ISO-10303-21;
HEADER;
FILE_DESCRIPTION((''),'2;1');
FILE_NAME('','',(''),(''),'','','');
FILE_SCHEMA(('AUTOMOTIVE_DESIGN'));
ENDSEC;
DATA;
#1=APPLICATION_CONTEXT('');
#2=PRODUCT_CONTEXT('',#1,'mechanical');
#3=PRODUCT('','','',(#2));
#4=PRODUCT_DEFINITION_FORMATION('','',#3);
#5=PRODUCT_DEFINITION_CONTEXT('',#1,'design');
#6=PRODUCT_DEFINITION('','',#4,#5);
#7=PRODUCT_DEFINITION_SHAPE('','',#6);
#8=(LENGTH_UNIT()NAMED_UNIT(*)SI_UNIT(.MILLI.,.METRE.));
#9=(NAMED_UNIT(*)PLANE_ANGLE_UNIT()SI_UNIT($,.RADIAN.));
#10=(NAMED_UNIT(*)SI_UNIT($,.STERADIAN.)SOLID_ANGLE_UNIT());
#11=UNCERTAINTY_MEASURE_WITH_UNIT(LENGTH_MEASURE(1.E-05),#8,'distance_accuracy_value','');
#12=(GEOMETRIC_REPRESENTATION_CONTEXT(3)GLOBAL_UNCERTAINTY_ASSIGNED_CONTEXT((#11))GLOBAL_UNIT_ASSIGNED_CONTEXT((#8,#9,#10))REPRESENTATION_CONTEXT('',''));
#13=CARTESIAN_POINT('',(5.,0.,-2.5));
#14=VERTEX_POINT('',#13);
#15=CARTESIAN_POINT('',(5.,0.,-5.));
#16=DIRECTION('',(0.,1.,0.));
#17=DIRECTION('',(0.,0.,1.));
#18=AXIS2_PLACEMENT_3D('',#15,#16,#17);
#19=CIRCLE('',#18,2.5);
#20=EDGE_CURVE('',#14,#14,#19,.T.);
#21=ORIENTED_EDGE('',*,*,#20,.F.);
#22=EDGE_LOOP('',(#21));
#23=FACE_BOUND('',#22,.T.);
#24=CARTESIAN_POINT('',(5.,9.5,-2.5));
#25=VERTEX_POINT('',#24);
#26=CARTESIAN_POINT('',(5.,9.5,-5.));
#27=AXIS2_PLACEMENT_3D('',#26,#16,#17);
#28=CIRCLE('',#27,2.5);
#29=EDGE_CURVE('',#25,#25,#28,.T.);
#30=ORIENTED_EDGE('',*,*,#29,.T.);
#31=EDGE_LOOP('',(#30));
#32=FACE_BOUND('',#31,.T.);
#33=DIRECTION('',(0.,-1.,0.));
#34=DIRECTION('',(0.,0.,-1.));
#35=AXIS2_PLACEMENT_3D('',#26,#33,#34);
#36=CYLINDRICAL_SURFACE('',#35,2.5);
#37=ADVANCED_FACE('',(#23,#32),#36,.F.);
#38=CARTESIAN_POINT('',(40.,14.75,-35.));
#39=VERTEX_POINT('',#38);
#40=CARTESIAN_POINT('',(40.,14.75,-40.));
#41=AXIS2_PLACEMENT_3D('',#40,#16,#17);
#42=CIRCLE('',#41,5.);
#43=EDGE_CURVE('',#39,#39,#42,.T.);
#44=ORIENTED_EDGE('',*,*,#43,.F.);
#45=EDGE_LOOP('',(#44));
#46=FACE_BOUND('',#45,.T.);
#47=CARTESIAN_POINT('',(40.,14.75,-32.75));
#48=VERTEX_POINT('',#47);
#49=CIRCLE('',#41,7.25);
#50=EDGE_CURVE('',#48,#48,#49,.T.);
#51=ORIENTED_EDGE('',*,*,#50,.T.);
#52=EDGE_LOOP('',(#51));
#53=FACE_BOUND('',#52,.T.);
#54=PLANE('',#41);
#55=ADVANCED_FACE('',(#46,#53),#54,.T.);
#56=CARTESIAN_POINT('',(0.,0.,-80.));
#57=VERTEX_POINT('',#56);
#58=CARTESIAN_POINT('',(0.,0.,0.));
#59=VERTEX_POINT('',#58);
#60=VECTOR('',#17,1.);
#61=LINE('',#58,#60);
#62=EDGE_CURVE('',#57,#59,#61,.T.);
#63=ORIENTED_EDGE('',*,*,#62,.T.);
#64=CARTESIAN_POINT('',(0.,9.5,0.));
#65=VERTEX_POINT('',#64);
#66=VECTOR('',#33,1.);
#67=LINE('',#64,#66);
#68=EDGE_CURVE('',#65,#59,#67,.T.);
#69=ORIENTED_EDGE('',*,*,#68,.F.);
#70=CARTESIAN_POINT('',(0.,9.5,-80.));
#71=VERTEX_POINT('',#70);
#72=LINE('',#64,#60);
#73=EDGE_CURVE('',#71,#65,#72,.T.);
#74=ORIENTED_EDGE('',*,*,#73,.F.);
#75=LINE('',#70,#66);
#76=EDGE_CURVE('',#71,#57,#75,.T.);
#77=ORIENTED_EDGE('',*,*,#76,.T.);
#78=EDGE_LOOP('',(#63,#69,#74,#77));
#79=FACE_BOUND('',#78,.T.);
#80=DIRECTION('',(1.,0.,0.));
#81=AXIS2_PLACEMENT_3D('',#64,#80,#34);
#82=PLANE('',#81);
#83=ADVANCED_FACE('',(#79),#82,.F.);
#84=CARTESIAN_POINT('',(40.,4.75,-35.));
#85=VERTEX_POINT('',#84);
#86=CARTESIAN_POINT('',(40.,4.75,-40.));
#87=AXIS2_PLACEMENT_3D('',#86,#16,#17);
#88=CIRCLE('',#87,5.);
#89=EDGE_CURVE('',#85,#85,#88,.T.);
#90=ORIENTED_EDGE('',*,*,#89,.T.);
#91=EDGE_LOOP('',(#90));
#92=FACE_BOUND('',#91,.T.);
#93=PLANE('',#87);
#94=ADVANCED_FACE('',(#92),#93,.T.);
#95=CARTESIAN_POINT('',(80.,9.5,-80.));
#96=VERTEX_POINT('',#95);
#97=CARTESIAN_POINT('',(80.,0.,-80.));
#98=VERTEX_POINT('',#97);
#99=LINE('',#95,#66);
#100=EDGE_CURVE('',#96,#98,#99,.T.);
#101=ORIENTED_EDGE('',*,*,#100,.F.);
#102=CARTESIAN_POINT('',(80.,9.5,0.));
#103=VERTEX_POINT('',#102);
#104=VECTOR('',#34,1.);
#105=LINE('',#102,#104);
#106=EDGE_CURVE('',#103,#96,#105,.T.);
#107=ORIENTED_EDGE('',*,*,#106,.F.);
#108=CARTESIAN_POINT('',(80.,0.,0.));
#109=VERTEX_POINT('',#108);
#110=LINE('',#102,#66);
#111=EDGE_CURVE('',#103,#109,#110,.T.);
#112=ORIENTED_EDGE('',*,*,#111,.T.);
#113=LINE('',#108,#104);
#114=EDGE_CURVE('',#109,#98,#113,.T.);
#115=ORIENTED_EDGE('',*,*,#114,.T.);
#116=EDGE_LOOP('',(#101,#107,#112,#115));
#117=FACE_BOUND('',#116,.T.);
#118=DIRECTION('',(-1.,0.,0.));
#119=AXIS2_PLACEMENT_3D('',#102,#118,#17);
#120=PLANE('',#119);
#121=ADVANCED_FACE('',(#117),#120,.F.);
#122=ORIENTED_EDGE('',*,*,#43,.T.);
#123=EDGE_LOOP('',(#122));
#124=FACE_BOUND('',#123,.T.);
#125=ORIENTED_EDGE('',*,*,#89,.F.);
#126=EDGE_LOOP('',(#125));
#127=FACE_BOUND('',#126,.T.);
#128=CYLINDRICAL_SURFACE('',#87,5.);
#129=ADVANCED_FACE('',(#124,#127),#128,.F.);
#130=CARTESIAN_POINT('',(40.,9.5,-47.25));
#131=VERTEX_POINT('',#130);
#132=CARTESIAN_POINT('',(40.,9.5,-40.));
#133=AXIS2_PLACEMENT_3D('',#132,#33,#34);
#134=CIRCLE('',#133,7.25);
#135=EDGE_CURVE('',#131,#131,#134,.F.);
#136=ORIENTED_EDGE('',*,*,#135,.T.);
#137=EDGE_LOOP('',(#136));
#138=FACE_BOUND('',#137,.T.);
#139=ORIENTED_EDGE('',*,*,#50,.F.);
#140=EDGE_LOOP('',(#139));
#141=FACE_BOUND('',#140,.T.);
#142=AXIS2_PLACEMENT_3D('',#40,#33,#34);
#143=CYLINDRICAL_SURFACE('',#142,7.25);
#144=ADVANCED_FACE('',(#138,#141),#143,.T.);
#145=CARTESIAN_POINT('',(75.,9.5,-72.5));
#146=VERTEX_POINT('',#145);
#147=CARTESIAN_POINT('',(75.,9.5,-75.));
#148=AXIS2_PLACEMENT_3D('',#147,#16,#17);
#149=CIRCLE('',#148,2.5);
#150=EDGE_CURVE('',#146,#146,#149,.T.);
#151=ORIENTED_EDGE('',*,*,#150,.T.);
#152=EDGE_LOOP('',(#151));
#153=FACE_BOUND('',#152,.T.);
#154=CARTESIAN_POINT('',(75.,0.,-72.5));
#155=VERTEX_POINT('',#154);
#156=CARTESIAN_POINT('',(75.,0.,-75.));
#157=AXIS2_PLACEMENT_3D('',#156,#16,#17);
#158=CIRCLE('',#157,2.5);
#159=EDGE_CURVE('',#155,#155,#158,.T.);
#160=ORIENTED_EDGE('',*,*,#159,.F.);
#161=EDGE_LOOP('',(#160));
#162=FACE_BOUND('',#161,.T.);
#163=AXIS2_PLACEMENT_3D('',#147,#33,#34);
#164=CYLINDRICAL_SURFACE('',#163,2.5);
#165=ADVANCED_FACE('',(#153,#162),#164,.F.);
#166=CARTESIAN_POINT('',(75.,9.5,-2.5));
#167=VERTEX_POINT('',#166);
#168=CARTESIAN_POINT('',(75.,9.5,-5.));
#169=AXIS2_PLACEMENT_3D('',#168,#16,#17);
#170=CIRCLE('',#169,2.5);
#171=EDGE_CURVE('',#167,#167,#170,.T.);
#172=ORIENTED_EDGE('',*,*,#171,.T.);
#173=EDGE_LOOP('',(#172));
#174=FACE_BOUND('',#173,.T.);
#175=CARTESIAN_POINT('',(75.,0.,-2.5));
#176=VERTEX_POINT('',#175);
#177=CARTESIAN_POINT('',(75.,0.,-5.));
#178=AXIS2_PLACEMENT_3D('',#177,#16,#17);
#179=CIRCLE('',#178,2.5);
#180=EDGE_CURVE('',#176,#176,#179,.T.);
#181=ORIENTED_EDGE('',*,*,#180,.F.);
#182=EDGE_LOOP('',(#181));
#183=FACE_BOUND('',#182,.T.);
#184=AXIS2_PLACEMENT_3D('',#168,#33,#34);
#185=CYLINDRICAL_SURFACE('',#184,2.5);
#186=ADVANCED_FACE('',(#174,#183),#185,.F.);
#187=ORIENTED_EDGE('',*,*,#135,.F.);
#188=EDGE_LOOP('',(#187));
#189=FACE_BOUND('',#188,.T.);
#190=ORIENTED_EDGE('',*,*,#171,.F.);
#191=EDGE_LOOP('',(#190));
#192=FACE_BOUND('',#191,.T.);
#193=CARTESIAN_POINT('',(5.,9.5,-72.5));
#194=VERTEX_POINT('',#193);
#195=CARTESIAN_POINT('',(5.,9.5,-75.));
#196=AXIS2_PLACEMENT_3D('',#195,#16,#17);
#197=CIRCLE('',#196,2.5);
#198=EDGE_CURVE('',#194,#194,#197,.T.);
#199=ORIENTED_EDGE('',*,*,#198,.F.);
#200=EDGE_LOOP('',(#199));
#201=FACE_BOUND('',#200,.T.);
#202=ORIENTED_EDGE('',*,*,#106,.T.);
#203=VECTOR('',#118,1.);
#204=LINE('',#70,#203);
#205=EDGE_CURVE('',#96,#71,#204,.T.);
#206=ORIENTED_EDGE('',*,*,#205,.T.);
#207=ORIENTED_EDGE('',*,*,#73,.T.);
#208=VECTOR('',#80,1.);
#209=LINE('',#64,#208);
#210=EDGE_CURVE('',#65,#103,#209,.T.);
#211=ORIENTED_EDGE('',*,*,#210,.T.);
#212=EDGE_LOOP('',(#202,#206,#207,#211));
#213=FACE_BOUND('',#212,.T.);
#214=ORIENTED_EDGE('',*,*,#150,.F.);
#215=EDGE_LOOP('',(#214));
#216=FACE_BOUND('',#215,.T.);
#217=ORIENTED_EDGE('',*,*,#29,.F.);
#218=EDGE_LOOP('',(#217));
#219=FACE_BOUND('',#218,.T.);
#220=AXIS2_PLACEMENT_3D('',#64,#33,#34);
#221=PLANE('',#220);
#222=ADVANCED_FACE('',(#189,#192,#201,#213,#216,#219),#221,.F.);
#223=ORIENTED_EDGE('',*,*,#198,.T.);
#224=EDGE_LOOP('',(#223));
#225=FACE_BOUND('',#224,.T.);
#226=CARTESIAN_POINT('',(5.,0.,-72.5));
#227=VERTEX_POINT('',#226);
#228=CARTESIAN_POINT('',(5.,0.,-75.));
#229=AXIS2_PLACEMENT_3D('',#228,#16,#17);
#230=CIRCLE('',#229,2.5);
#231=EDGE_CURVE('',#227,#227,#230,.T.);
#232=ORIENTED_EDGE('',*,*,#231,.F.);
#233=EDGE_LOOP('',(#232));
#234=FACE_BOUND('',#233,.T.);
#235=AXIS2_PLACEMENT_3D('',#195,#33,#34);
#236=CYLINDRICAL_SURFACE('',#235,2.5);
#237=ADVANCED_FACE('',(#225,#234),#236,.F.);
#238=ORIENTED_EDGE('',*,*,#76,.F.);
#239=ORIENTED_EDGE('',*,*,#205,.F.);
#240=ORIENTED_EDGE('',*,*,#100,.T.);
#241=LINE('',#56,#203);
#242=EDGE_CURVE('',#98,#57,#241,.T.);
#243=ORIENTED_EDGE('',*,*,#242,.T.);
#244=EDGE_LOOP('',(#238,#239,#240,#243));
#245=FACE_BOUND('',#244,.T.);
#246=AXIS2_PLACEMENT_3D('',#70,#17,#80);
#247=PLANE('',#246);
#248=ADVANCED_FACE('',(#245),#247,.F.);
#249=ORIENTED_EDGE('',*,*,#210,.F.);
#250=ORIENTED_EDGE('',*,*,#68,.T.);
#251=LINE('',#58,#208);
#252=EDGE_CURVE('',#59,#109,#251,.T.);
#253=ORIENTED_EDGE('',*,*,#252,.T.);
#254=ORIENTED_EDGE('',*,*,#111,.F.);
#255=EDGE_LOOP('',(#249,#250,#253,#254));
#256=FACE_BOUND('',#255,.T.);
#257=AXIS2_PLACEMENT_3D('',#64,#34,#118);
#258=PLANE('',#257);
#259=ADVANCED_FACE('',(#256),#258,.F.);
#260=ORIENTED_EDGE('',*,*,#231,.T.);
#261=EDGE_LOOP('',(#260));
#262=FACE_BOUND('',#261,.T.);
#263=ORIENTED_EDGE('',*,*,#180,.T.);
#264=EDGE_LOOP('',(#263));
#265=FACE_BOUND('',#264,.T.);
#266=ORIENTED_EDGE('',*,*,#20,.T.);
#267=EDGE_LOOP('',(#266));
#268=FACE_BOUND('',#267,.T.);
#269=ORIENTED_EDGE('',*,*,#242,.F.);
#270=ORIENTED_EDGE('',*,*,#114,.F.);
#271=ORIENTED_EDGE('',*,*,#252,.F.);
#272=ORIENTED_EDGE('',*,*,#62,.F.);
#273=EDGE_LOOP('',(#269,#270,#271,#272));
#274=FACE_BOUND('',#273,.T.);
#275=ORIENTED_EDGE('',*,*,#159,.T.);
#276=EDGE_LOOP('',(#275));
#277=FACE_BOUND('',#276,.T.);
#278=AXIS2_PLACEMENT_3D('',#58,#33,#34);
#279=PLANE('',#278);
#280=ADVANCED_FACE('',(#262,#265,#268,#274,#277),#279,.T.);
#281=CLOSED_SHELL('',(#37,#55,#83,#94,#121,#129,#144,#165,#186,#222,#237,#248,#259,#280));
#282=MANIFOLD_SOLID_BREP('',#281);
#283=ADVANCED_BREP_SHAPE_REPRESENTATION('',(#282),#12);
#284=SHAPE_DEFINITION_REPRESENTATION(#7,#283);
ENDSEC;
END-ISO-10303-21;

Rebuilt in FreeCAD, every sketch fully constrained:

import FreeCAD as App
import Part
import Sketcher


def add_polygon(sketch, points):
    """Adds a closed chain of lines whose ends are joined by coincident constraints."""
    first, n = sketch.GeometryCount, len(points)
    for a, b in zip(points, points[1:] + points[:1]):
        sketch.addGeometry(Part.LineSegment(App.Vector(*a, 0), App.Vector(*b, 0)), False)
    for i in range(n):
        sketch.addConstraint(Sketcher.Constraint("Coincident", first + i, 2, first + (i + 1) % n, 1))

doc = App.newDocument("Part")
params = doc.addObject("Spreadsheet::Sheet", "Params")
for row, (alias, value) in enumerate([
    ("sketch1_diameter", "5 mm"),
    ("sketch1_width", "80 mm"),
    ("pad1_length", "9.5 mm"),
    ("sketch2_diameter", "10 mm"),
    ("pocket1_length", "9.5 mm"),
    ("sketch3_diameter", "10 mm"),
    ("sketch3_diameter2", "14.5 mm"),
    ("pad2_length", "10 mm"),
], start=1):
    params.set(f"A{row}", alias)
    params.set(f"B{row}", "=" + value)
    params.setAlias(f"B{row}", alias)

body = doc.addObject("PartDesign::Body", "Body")

# Sketch on XZ plane
sketch1 = body.newObject("Sketcher::SketchObject", "Sketch")
sketch1.AttachmentSupport = (doc.getObject("XZ_Plane"), [""])
sketch1.MapMode = "FlatFace"
add_polygon(sketch1, [(0, -80), (0, 0), (80, 0), (80, -80)])  # lines 0-3
sketch1.addGeometry(Part.Circle(App.Vector(5, -5, 0), App.Vector(0, 0, 1), 2.5), False)  # 4
sketch1.addGeometry(Part.Circle(App.Vector(75, -5, 0), App.Vector(0, 0, 1), 2.5), False)  # 5
sketch1.addGeometry(Part.Circle(App.Vector(5, -75, 0), App.Vector(0, 0, 1), 2.5), False)  # 6
sketch1.addGeometry(Part.Circle(App.Vector(75, -75, 0), App.Vector(0, 0, 1), 2.5), False)  # 7
sketch1.addConstraint(Sketcher.Constraint("Vertical", 0))
sketch1.addConstraint(Sketcher.Constraint("Horizontal", 1))
sketch1.addConstraint(Sketcher.Constraint("Vertical", 2))
sketch1.addConstraint(Sketcher.Constraint("Horizontal", 3))
sketch1.addConstraint(Sketcher.Constraint("Coincident", 0, 2, -1, 1))
sketch1.addConstraint(Sketcher.Constraint("Equal", 4, 5))
sketch1.addConstraint(Sketcher.Constraint("Equal", 5, 6))
sketch1.addConstraint(Sketcher.Constraint("Equal", 6, 7))
sketch1.addConstraint(Sketcher.Constraint("Horizontal", 4, 3, 5, 3))
sketch1.addConstraint(Sketcher.Constraint("Horizontal", 6, 3, 7, 3))
sketch1.addConstraint(Sketcher.Constraint("Vertical", 4, 3, 6, 3))
sketch1.addConstraint(Sketcher.Constraint("Vertical", 5, 3, 7, 3))
sketch1.addConstraint(Sketcher.Constraint("Equal", 3, 0))
sketch1.addConstraint(Sketcher.Constraint("Diameter", 4, 5.0))
sketch1.addConstraint(Sketcher.Constraint("DistanceX", 1, 1, 1, 2, 80.0))
sketch1.addConstraint(Sketcher.Constraint("DistanceX", -1, 1, 4, 3, 5.0))
sketch1.addConstraint(Sketcher.Constraint("DistanceY", 4, 3, -1, 1, 5.0))
sketch1.addConstraint(Sketcher.Constraint("DistanceX", -1, 1, 5, 3, 75.0))
sketch1.addConstraint(Sketcher.Constraint("DistanceY", 6, 3, -1, 1, 75.0))
sketch1.setExpression("Constraints[17]", "Params.sketch1_diameter")
sketch1.setExpression("Constraints[18]", "Params.sketch1_width")
pad1 = body.newObject("PartDesign::Pad", "Pad")
pad1.Profile = sketch1
pad1.setExpression("Length", "Params.pad1_length")
pad1.Reversed = True

# Sketch on XZ plane
sketch2 = body.newObject("Sketcher::SketchObject", "Sketch001")
sketch2.AttachmentSupport = (doc.getObject("XZ_Plane"), [""])
sketch2.MapMode = "FlatFace"
sketch2.AttachmentOffset = App.Placement(App.Vector(0, 0, -9.5), App.Rotation())
sketch2.addGeometry(Part.Circle(App.Vector(40, -40, 0), App.Vector(0, 0, 1), 5), False)
sketch2.addConstraint(Sketcher.Constraint("Diameter", 0, 10.0))
sketch2.addConstraint(Sketcher.Constraint("DistanceX", -1, 1, 0, 3, 40.0))
sketch2.addConstraint(Sketcher.Constraint("DistanceY", 0, 3, -1, 1, 40.0))
sketch2.setExpression("Constraints[0]", "Params.sketch2_diameter")
pocket1 = body.newObject("PartDesign::Pocket", "Pocket")
pocket1.Profile = sketch2
pocket1.setExpression("Length", "Params.pocket1_length")
pocket1.Midplane = True

# Sketch on XZ plane
sketch3 = body.newObject("Sketcher::SketchObject", "Sketch002")
sketch3.AttachmentSupport = (doc.getObject("XZ_Plane"), [""])
sketch3.MapMode = "FlatFace"
sketch3.AttachmentOffset = App.Placement(App.Vector(0, 0, -4.75), App.Rotation())
sketch3.addGeometry(Part.Circle(App.Vector(40, -40, 0), App.Vector(0, 0, 1), 7), False)
sketch3.addGeometry(Part.Circle(App.Vector(40, -40, 0), App.Vector(0, 0, 1), 5), False)
sketch3.addConstraint(Sketcher.Constraint("Coincident", 1, 3, 0, 3))
sketch3.addConstraint(Sketcher.Constraint("Diameter", 1, 10.0))
sketch3.addConstraint(Sketcher.Constraint("Diameter", 0, 14.5))
sketch3.addConstraint(Sketcher.Constraint("DistanceX", -1, 1, 0, 3, 40.0))
sketch3.addConstraint(Sketcher.Constraint("DistanceY", 0, 3, -1, 1, 40.0))
sketch3.setExpression("Constraints[1]", "Params.sketch3_diameter")
sketch3.setExpression("Constraints[2]", "Params.sketch3_diameter2")
pad2 = body.newObject("PartDesign::Pad", "Pad001")
pad2.Profile = sketch3
pad2.setExpression("Length", "Params.pad2_length")
pad2.Reversed = True

doc.recompute()
